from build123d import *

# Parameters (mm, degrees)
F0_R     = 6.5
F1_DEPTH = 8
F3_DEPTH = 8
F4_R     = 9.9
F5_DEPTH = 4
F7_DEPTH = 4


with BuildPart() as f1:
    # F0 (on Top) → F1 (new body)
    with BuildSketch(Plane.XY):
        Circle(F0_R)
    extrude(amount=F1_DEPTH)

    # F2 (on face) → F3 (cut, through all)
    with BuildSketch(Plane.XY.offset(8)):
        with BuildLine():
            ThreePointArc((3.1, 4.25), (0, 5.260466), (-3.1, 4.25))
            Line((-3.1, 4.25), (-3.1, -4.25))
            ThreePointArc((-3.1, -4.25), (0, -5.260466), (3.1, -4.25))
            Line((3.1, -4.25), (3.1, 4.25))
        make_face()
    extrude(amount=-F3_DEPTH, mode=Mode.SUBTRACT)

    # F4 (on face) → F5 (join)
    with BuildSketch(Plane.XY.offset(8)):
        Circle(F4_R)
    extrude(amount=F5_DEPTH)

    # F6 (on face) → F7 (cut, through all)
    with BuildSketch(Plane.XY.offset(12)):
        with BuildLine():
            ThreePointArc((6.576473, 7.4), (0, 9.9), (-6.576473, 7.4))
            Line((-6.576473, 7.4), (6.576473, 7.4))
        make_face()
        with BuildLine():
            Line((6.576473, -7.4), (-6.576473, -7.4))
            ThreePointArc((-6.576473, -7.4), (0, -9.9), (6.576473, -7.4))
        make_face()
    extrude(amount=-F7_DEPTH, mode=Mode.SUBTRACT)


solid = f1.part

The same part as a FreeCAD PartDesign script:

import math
import FreeCAD as App
import Part
import Sketcher

doc = App.newDocument("Part")
body = doc.addObject("PartDesign::Body", "Body")

# Sketch on XY plane
sketch1 = body.newObject("Sketcher::SketchObject", "Sketch")
sketch1.AttachmentSupport = (doc.getObject("XY_Plane"), [""])
sketch1.MapMode = "FlatFace"
sketch1.addGeometry(Part.Circle(App.Vector(0, 0, 0), App.Vector(0, 0, 1), 6), False)
sketch1.addConstraint(Sketcher.Constraint("Coincident", 0, 3, -1, 1))
sketch1.addConstraint(Sketcher.Constraint("Diameter", 0, 13.0))
pad1 = body.newObject("PartDesign::Pad", "Pad")
pad1.Profile = sketch1
pad1.Length = 8

# Sketch on XY plane
sketch2 = body.newObject("Sketcher::SketchObject", "Sketch001")
sketch2.AttachmentSupport = (doc.getObject("XY_Plane"), [""])
sketch2.MapMode = "FlatFace"
sketch2.AttachmentOffset = App.Placement(App.Vector(0, 0, 8), App.Rotation())
sketch2.addGeometry(Part.ArcOfCircle(Part.Circle(App.Vector(0, 0, 0), App.Vector(0, 0, 1), 5), math.radians(54), math.radians(126)), False)
sketch2.addGeometry(Part.LineSegment(App.Vector(-3, 4, 0), App.Vector(-3, -4, 0)), False)
sketch2.addGeometry(Part.ArcOfCircle(Part.Circle(App.Vector(0, 0, 0), App.Vector(0, 0, 1), 5), math.radians(-126), math.radians(-54)), False)
sketch2.addGeometry(Part.LineSegment(App.Vector(3, -4, 0), App.Vector(3, 4, 0)), False)
sketch2.addConstraint(Sketcher.Constraint("Coincident", 0, 2, 1, 1))
sketch2.addConstraint(Sketcher.Constraint("Coincident", 1, 2, 2, 1))
sketch2.addConstraint(Sketcher.Constraint("Coincident", 2, 2, 3, 1))
sketch2.addConstraint(Sketcher.Constraint("Coincident", 3, 2, 0, 1))
sketch2.addConstraint(Sketcher.Constraint("Vertical", 1))
sketch2.addConstraint(Sketcher.Constraint("Vertical", 3))
sketch2.addConstraint(Sketcher.Constraint("Coincident", 0, 3, -1, 1))
sketch2.addConstraint(Sketcher.Constraint("Coincident", 2, 3, -1, 1))
sketch2.addConstraint(Sketcher.Constraint("Equal", 0, 2))
sketch2.addConstraint(Sketcher.Constraint("Horizontal", 1, 2, 2, 2))
sketch2.addConstraint(Sketcher.Constraint("DistanceY", 1, 2, 1, 1, 8.5))
sketch2.addConstraint(Sketcher.Constraint("DistanceX", 0, 2, -1, 1, 3.1))
pocket1 = body.newObject("PartDesign::Pocket", "Pocket")
pocket1.Profile = sketch2
pocket1.Type = "ThroughAll"

# Sketch on XY plane
sketch3 = body.newObject("Sketcher::SketchObject", "Sketch002")
sketch3.AttachmentSupport = (doc.getObject("XY_Plane"), [""])
sketch3.MapMode = "FlatFace"
sketch3.AttachmentOffset = App.Placement(App.Vector(0, 0, 8), App.Rotation())
sketch3.addGeometry(Part.Circle(App.Vector(0, 0, 0), App.Vector(0, 0, 1), 10), False)
sketch3.addConstraint(Sketcher.Constraint("Coincident", 0, 3, -1, 1))
sketch3.addConstraint(Sketcher.Constraint("Diameter", 0, 19.8))
pad2 = body.newObject("PartDesign::Pad", "Pad001")
pad2.Profile = sketch3
pad2.Length = 4

# Sketch on XY plane
sketch4 = body.newObject("Sketcher::SketchObject", "Sketch003")
sketch4.AttachmentSupport = (doc.getObject("XY_Plane"), [""])
sketch4.MapMode = "FlatFace"
sketch4.AttachmentOffset = App.Placement(App.Vector(0, 0, 12), App.Rotation())
sketch4.addGeometry(Part.ArcOfCircle(Part.Circle(App.Vector(0, 0, 0), App.Vector(0, 0, 1), 10), math.radians(48), math.radians(132)), False)
sketch4.addGeometry(Part.LineSegment(App.Vector(-7, 7, 0), App.Vector(7, 7, 0)), False)
sketch4.addGeometry(Part.LineSegment(App.Vector(7, -7, 0), App.Vector(-7, -7, 0)), False)
sketch4.addGeometry(Part.ArcOfCircle(Part.Circle(App.Vector(0, 0, 0), App.Vector(0, 0, 1), 10), math.radians(-132), math.radians(-48)), False)
sketch4.addConstraint(Sketcher.Constraint("Coincident", 0, 1, 1, 2))
sketch4.addConstraint(Sketcher.Constraint("Coincident", 1, 1, 0, 2))
sketch4.addConstraint(Sketcher.Constraint("Coincident", 2, 1, 3, 2))
sketch4.addConstraint(Sketcher.Constraint("Coincident", 3, 1, 2, 2))
sketch4.addConstraint(Sketcher.Constraint("Horizontal", 1))
sketch4.addConstraint(Sketcher.Constraint("Horizontal", 2))
sketch4.addConstraint(Sketcher.Constraint("Coincident", 0, 3, -1, 1))
sketch4.addConstraint(Sketcher.Constraint("Coincident", 3, 3, -1, 1))
sketch4.addConstraint(Sketcher.Constraint("Equal", 0, 3))
sketch4.addConstraint(Sketcher.Constraint("Vertical", 0, 1, 2, 1))
sketch4.addConstraint(Sketcher.Constraint("Radius", 0, 9.899999))
sketch4.addConstraint(Sketcher.Constraint("DistanceY", -1, 1, 0, 1, 7.4))
pocket2 = body.newObject("PartDesign::Pocket", "Pocket001")
pocket2.Profile = sketch4
pocket2.Type = "ThroughAll"

doc.recompute()
